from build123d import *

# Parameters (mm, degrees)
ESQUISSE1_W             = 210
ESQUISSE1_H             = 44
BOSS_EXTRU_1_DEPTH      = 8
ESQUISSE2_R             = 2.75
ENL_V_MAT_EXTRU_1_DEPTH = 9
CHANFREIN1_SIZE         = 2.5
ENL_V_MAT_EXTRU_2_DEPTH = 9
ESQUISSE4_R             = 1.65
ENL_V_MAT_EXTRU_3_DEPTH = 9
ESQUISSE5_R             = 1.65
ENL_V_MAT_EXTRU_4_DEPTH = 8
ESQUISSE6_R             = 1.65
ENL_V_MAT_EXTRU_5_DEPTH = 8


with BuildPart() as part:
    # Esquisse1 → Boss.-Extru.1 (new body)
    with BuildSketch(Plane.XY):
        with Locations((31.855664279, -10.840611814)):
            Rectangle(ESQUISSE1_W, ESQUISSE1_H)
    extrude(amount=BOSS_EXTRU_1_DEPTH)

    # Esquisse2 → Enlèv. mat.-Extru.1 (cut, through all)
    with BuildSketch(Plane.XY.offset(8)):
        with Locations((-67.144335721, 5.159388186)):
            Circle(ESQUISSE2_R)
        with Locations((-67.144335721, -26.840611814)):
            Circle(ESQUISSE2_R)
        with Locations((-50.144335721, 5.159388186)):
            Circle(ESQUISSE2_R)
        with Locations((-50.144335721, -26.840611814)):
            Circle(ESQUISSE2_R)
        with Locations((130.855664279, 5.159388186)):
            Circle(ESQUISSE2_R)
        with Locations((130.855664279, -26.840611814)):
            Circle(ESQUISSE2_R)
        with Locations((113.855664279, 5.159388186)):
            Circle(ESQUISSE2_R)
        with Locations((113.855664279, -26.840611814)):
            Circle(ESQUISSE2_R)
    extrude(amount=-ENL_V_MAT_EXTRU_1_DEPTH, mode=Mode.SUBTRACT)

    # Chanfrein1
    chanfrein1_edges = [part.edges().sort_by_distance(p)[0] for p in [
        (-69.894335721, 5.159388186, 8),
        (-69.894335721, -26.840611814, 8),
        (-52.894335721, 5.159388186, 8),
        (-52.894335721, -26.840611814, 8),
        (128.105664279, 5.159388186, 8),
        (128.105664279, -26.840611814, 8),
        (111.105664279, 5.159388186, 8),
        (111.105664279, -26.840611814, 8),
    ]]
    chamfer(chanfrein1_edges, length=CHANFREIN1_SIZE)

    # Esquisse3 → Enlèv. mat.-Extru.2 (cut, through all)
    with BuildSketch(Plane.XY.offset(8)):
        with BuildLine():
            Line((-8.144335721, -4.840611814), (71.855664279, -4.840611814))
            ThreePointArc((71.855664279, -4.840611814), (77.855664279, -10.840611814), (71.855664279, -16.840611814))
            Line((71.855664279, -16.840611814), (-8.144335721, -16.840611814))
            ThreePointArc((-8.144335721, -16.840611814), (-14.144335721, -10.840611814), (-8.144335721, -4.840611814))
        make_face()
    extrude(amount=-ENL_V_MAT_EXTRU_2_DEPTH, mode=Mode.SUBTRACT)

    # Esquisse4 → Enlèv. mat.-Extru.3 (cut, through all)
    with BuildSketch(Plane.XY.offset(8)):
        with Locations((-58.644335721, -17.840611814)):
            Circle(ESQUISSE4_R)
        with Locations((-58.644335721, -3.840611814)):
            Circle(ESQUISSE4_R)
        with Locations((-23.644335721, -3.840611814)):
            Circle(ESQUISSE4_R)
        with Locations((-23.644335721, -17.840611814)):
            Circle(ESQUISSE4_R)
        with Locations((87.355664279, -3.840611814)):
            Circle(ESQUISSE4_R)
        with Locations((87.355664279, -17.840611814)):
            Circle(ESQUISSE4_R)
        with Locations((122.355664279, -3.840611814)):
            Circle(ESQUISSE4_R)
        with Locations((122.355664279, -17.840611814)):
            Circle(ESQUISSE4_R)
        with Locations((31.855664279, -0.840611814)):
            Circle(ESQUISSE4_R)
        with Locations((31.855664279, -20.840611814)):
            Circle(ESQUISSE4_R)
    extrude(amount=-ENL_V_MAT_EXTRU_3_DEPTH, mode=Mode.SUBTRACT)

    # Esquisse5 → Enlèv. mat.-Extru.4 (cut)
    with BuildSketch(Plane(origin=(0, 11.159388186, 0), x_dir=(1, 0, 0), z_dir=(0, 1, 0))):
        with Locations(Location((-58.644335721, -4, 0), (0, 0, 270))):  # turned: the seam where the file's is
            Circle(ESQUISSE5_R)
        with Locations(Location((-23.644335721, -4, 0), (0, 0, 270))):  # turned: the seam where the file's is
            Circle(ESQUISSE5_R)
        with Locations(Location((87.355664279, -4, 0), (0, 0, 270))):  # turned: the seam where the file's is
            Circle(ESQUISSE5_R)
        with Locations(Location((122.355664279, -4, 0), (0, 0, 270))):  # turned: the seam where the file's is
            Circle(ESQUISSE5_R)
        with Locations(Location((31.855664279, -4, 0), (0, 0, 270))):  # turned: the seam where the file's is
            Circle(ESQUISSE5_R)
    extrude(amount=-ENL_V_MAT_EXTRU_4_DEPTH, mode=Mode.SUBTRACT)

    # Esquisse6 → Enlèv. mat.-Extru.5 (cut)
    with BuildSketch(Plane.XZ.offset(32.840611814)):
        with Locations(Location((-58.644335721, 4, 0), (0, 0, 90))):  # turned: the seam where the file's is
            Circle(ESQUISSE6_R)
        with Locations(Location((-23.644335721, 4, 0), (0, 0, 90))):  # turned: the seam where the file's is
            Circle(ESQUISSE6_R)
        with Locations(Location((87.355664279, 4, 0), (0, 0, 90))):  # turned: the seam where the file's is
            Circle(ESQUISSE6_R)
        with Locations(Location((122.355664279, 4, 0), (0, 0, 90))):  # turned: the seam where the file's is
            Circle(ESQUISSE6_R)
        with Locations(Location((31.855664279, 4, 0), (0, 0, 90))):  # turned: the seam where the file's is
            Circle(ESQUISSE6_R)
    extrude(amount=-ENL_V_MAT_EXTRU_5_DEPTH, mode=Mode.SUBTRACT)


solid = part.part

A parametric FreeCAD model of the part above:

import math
import FreeCAD as App
import Part
import Sketcher

V = App.Vector
Q = App.Units.Quantity


def edges_at(feature, points):
    """Names of the edges that pass closest to the given points."""
    edges = feature.Shape.Edges
    near = lambda p: min(range(len(edges)), key=lambda i: edges[i].distToShape(Part.Vertex(*p))[0])
    return sorted({f"Edge{near(p) + 1}" for p in points})


def add_polygon(sketch, points):
    """Adds a closed chain of lines whose ends are joined by coincident constraints."""
    first, n = sketch.GeometryCount, len(points)
    for a, b in zip(points, points[1:] + points[:1]):
        sketch.addGeometry(Part.LineSegment(App.Vector(*a, 0), App.Vector(*b, 0)), False)
    for i in range(n):
        sketch.addConstraint(Sketcher.Constraint("Coincident", first + i, 2, first + (i + 1) % n, 1))

doc = App.newDocument("Part")
params = doc.addObject("Spreadsheet::Sheet", "Params")
for row, (alias, value) in enumerate([
    ("sketch1_width", "210 mm"),
    ("sketch1_height", "44 mm"),
    ("pad1_length", "8 mm"),
    ("sketch2_diameter", "5.5 mm"),
    ("chamfer_size", "2.5 mm"),
    ("sketch3_radius", "6 mm"),
    ("sketch3_width", "80 mm"),
    ("sketch4_diameter", "3.3 mm"),
    ("sketch5_diameter", "3.3 mm"),
    ("pocket4_length", "8 mm"),
    ("sketch6_diameter", "3.3 mm"),
    ("pocket5_length", "8 mm"),
], start=1):
    params.set(f"A{row}", alias)
    params.set(f"B{row}", "=" + value)
    params.setAlias(f"B{row}", alias)

body = doc.addObject("PartDesign::Body", "Body")

# Sketch on XY plane
sketch1 = body.newObject("Sketcher::SketchObject", "Sketch")
sketch1.AttachmentSupport = (doc.getObject("XY_Plane"), [""])
sketch1.MapMode = "FlatFace"
add_polygon(sketch1, [(-73, 11), (-73, -33), (137, -33), (137, 11)])  # lines 0-3
sketch1.addConstraint([
    Sketcher.Constraint("Vertical", 0),
    Sketcher.Constraint("Horizontal", 1),
    Sketcher.Constraint("Vertical", 2),
    Sketcher.Constraint("Horizontal", 3),
    Sketcher.Constraint("DistanceX", 1, 1, 1, 2, Q("210 mm")),
    Sketcher.Constraint("DistanceY", 0, 2, 0, 1, Q("44 mm")),
    Sketcher.Constraint("DistanceY", 0, 2, -1, 1, Q("32.840612 mm")),
    Sketcher.Constraint("DistanceX", 0, 2, -1, 1, Q("73.144336 mm")),
])
sketch1.setExpression("Constraints[8]", "Params.sketch1_width")
sketch1.setExpression("Constraints[9]", "Params.sketch1_height")
pad1 = body.newObject("PartDesign::Pad", "Pad")
pad1.Profile = sketch1
pad1.setExpression("Length", "Params.pad1_length")

# Sketch on XY plane
sketch2 = body.newObject("Sketcher::SketchObject", "Sketch001")
sketch2.AttachmentSupport = (doc.getObject("XY_Plane"), [""])
sketch2.MapMode = "FlatFace"
sketch2.AttachmentOffset = App.Placement(V(0, 0, 8), App.Rotation())
sketch2.addGeometry([
    Part.Circle(V(-67.1, 5.2, 0), V(0, 0, 1), 2.8),  # 0
    Part.Circle(V(-67.1, -26.8, 0), V(0, 0, 1), 2.8),  # 1
    Part.Circle(V(-50.1, 5.2, 0), V(0, 0, 1), 2.8),  # 2
    Part.Circle(V(-50.1, -26.8, 0), V(0, 0, 1), 2.8),  # 3
    Part.Circle(V(130.9, 5.2, 0), V(0, 0, 1), 2.8),  # 4
    Part.Circle(V(130.9, -26.8, 0), V(0, 0, 1), 2.8),  # 5
    Part.Circle(V(113.9, 5.2, 0), V(0, 0, 1), 2.8),  # 6
    Part.Circle(V(113.9, -26.8, 0), V(0, 0, 1), 2.8),  # 7
], False)
sketch2.addConstraint([
    Sketcher.Constraint("Equal", 0, 1),
    Sketcher.Constraint("Equal", 1, 2),
    Sketcher.Constraint("Equal", 2, 3),
    Sketcher.Constraint("Equal", 3, 4),
    Sketcher.Constraint("Equal", 4, 5),
    Sketcher.Constraint("Equal", 5, 6),
    Sketcher.Constraint("Equal", 6, 7),
    Sketcher.Constraint("Horizontal", 0, 3, 2, 3),
    Sketcher.Constraint("Horizontal", 1, 3, 3, 3),
    Sketcher.Constraint("Horizontal", 2, 3, 4, 3),
    Sketcher.Constraint("Horizontal", 3, 3, 5, 3),
    Sketcher.Constraint("Horizontal", 4, 3, 6, 3),
    Sketcher.Constraint("Horizontal", 5, 3, 7, 3),
    Sketcher.Constraint("Vertical", 0, 3, 1, 3),
    Sketcher.Constraint("Vertical", 2, 3, 3, 3),
    Sketcher.Constraint("Vertical", 4, 3, 5, 3),
    Sketcher.Constraint("Vertical", 6, 3, 7, 3),
    Sketcher.Constraint("Diameter", 0, Q("5.5 mm")),
    Sketcher.Constraint("DistanceY", 1, 3, 0, 3, Q("32 mm")),
    Sketcher.Constraint("DistanceX", 0, 3, 2, 3, Q("17 mm")),
    Sketcher.Constraint("DistanceX", 2, 3, 4, 3, Q("181 mm")),
    Sketcher.Constraint("DistanceX", 6, 3, 4, 3, Q("17 mm")),
    Sketcher.Constraint("DistanceY", -1, 1, 0, 3, Q("5.159388 mm")),
    Sketcher.Constraint("DistanceX", 0, 3, -1, 1, Q("67.144336 mm")),
])
sketch2.setExpression("Constraints[17]", "Params.sketch2_diameter")
pocket1 = body.newObject("PartDesign::Pocket", "Pocket")
pocket1.Profile = sketch2
pocket1.Type = "ThroughAll"
doc.recompute()

chamfer = body.newObject("PartDesign::Chamfer", "Chamfer")
chamfer.Base = (pocket1, edges_at(pocket1, [
    (-69.894, 5.159, 8),
    (-69.894, -26.841, 8),
    (-52.894, 5.159, 8),
    (-52.894, -26.841, 8),
    (128.106, 5.159, 8),
    (128.106, -26.841, 8),
    (111.106, 5.159, 8),
    (111.106, -26.841, 8),
]))
chamfer.setExpression("Size", "Params.chamfer_size")

# Sketch on XY plane
sketch3 = body.newObject("Sketcher::SketchObject", "Sketch002")
sketch3.AttachmentSupport = (doc.getObject("XY_Plane"), [""])
sketch3.MapMode = "FlatFace"
sketch3.AttachmentOffset = App.Placement(V(0, 0, 8), App.Rotation())
sketch3.addGeometry([
    Part.LineSegment(V(72, -5, 0), V(-8, -5, 0)),
    Part.ArcOfCircle(Part.Circle(V(-8, -11, 0), V(0, 0, 1), 6), math.radians(90), math.radians(270)),
    Part.LineSegment(V(-8, -17, 0), V(72, -17, 0)),
    Part.ArcOfCircle(Part.Circle(V(72, -11, 0), V(0, 0, 1), 6), math.radians(-90), math.radians(90)),
], False)
sketch3.addConstraint([
    Sketcher.Constraint("Tangent", 0, 2, 1, 1),
    Sketcher.Constraint("Tangent", 1, 2, 2, 1),
    Sketcher.Constraint("Tangent", 2, 2, 3, 1),
    Sketcher.Constraint("Tangent", 3, 2, 0, 1),
    Sketcher.Constraint("Horizontal", 0),
    Sketcher.Constraint("Horizontal", 2),
    Sketcher.Constraint("Radius", 1, Q("6 mm")),
    Sketcher.Constraint("DistanceX", 0, 2, 0, 1, Q("80 mm")),
    Sketcher.Constraint("DistanceY", 1, 3, -1, 1, Q("10.840612 mm")),
    Sketcher.Constraint("DistanceX", 1, 3, -1, 1, Q("8.144336 mm")),
])
sketch3.setExpression("Constraints[6]", "Params.sketch3_radius")
sketch3.setExpression("Constraints[7]", "Params.sketch3_width")
pocket2 = body.newObject("PartDesign::Pocket", "Pocket001")
pocket2.Profile = sketch3
pocket2.Type = "ThroughAll"

# Sketch on XY plane
sketch4 = body.newObject("Sketcher::SketchObject", "Sketch003")
sketch4.AttachmentSupport = (doc.getObject("XY_Plane"), [""])
sketch4.MapMode = "FlatFace"
sketch4.AttachmentOffset = App.Placement(V(0, 0, 8), App.Rotation())
sketch4.addGeometry([
    Part.Circle(V(-58.6, -17.8, 0), V(0, 0, 1), 1.6),  # 0
    Part.Circle(V(-58.6, -3.8, 0), V(0, 0, 1), 1.6),  # 1
    Part.Circle(V(-23.6, -3.8, 0), V(0, 0, 1), 1.6),  # 2
    Part.Circle(V(-23.6, -17.8, 0), V(0, 0, 1), 1.6),  # 3
    Part.Circle(V(87.4, -3.8, 0), V(0, 0, 1), 1.6),  # 4
    Part.Circle(V(87.4, -17.8, 0), V(0, 0, 1), 1.6),  # 5
    Part.Circle(V(122.4, -3.8, 0), V(0, 0, 1), 1.6),  # 6
    Part.Circle(V(122.4, -17.8, 0), V(0, 0, 1), 1.6),  # 7
    Part.Circle(V(31.9, -0.8, 0), V(0, 0, 1), 1.6),  # 8
    Part.Circle(V(31.9, -20.8, 0), V(0, 0, 1), 1.6),  # 9
], False)
sketch4.addConstraint([
    Sketcher.Constraint("Equal", 0, 1),
    Sketcher.Constraint("Equal", 1, 2),
    Sketcher.Constraint("Equal", 2, 3),
    Sketcher.Constraint("Equal", 3, 4),
    Sketcher.Constraint("Equal", 4, 5),
    Sketcher.Constraint("Equal", 5, 6),
    Sketcher.Constraint("Equal", 6, 7),
    Sketcher.Constraint("Equal", 7, 8),
    Sketcher.Constraint("Equal", 8, 9),
    Sketcher.Constraint("Horizontal", 1, 3, 2, 3),
    Sketcher.Constraint("Horizontal", 0, 3, 3, 3),
    Sketcher.Constraint("Horizontal", 2, 3, 4, 3),
    Sketcher.Constraint("Horizontal", 3, 3, 5, 3),
    Sketcher.Constraint("Horizontal", 4, 3, 6, 3),
    Sketcher.Constraint("Horizontal", 5, 3, 7, 3),
    Sketcher.Constraint("Vertical", 0, 3, 1, 3),
    Sketcher.Constraint("Vertical", 2, 3, 3, 3),
    Sketcher.Constraint("Vertical", 4, 3, 5, 3),
    Sketcher.Constraint("Vertical", 6, 3, 7, 3),
    Sketcher.Constraint("Vertical", 8, 3, 9, 3),
    Sketcher.Constraint("Diameter", 0, Q("3.3 mm")),
    Sketcher.Constraint("DistanceY", 0, 3, 1, 3, Q("14 mm")),
    Sketcher.Constraint("DistanceX", 1, 3, 2, 3, Q("35 mm")),
    Sketcher.Constraint("DistanceX", 2, 3, 4, 3, Q("111 mm")),
    Sketcher.Constraint("DistanceX", 4, 3, 6, 3, Q("35 mm")),
    Sketcher.Constraint("DistanceY", 2, 3, 8, 3, Q("3 mm")),
    Sketcher.Constraint("DistanceY", 9, 3, 8, 3, Q("20 mm")),
    Sketcher.Constraint("DistanceX", 2, 3, 8, 3, Q("55.5 mm")),
    Sketcher.Constraint("DistanceY", 0, 3, -1, 1, Q("17.840612 mm")),
    Sketcher.Constraint("DistanceX", 0, 3, -1, 1, Q("58.644336 mm")),
])
sketch4.setExpression("Constraints[20]", "Params.sketch4_diameter")
pocket3 = body.newObject("PartDesign::Pocket", "Pocket002")
pocket3.Profile = sketch4
pocket3.Type = "ThroughAll"

# Sketch on XZ plane
sketch5 = body.newObject("Sketcher::SketchObject", "Sketch004")
sketch5.AttachmentSupport = (doc.getObject("XZ_Plane"), [""])
sketch5.MapMode = "FlatFace"
sketch5.AttachmentOffset = App.Placement(V(0, 0, -11.159388), App.Rotation())
sketch5.addGeometry([
    Part.Circle(V(-58.6, 4, 0), V(0, 0, 1), 1.6),  # 0
    Part.Circle(V(-23.6, 4, 0), V(0, 0, 1), 1.6),  # 1
    Part.Circle(V(87.4, 4, 0), V(0, 0, 1), 1.6),  # 2
    Part.Circle(V(122.4, 4, 0), V(0, 0, 1), 1.6),  # 3
    Part.Circle(V(31.9, 4, 0), V(0, 0, 1), 1.6),  # 4
], False)
sketch5.addConstraint([
    Sketcher.Constraint("Equal", 0, 1),
    Sketcher.Constraint("Equal", 1, 2),
    Sketcher.Constraint("Equal", 2, 3),
    Sketcher.Constraint("Equal", 3, 4),
    Sketcher.Constraint("Horizontal", 0, 3, 1, 3),
    Sketcher.Constraint("Horizontal", 1, 3, 2, 3),
    Sketcher.Constraint("Horizontal", 2, 3, 3, 3),
    Sketcher.Constraint("Horizontal", 3, 3, 4, 3),
    Sketcher.Constraint("Diameter", 0, Q("3.3 mm")),
    Sketcher.Constraint("DistanceY", -1, 1, 0, 3, Q("4 mm")),
    Sketcher.Constraint("DistanceX", 0, 3, 1, 3, Q("35 mm")),
    Sketcher.Constraint("DistanceX", 1, 3, 2, 3, Q("111 mm")),
    Sketcher.Constraint("DistanceX", 2, 3, 3, 3, Q("35 mm")),
    Sketcher.Constraint("DistanceX", 1, 3, 4, 3, Q("55.5 mm")),
    Sketcher.Constraint("DistanceX", 0, 3, -1, 1, Q("58.644336 mm")),
])
sketch5.setExpression("Constraints[8]", "Params.sketch5_diameter")
pocket4 = body.newObject("PartDesign::Pocket", "Pocket003")
pocket4.Profile = sketch5
pocket4.setExpression("Length", "Params.pocket4_length")
pocket4.Reversed = True

# Sketch on XZ plane
sketch6 = body.newObject("Sketcher::SketchObject", "Sketch005")
sketch6.AttachmentSupport = (doc.getObject("XZ_Plane"), [""])
sketch6.MapMode = "FlatFace"
sketch6.AttachmentOffset = App.Placement(V(0, 0, 32.840612), App.Rotation())
sketch6.addGeometry([
    Part.Circle(V(-58.6, 4, 0), V(0, 0, 1), 1.6),  # 0
    Part.Circle(V(-23.6, 4, 0), V(0, 0, 1), 1.6),  # 1
    Part.Circle(V(87.4, 4, 0), V(0, 0, 1), 1.6),  # 2
    Part.Circle(V(122.4, 4, 0), V(0, 0, 1), 1.6),  # 3
    Part.Circle(V(31.9, 4, 0), V(0, 0, 1), 1.6),  # 4
], False)
sketch6.addConstraint([
    Sketcher.Constraint("Equal", 0, 1),
    Sketcher.Constraint("Equal", 1, 2),
    Sketcher.Constraint("Equal", 2, 3),
    Sketcher.Constraint("Equal", 3, 4),
    Sketcher.Constraint("Horizontal", 0, 3, 1, 3),
    Sketcher.Constraint("Horizontal", 1, 3, 2, 3),
    Sketcher.Constraint("Horizontal", 2, 3, 3, 3),
    Sketcher.Constraint("Horizontal", 3, 3, 4, 3),
    Sketcher.Constraint("Diameter", 0, Q("3.3 mm")),
    Sketcher.Constraint("DistanceY", -1, 1, 0, 3, Q("4 mm")),
    Sketcher.Constraint("DistanceX", 0, 3, 1, 3, Q("35 mm")),
    Sketcher.Constraint("DistanceX", 1, 3, 2, 3, Q("111 mm")),
    Sketcher.Constraint("DistanceX", 2, 3, 3, 3, Q("35 mm")),
    Sketcher.Constraint("DistanceX", 1, 3, 4, 3, Q("55.5 mm")),
    Sketcher.Constraint("DistanceX", 0, 3, -1, 1, Q("58.644336 mm")),
])
sketch6.setExpression("Constraints[8]", "Params.sketch6_diameter")
pocket5 = body.newObject("PartDesign::Pocket", "Pocket004")
pocket5.Profile = sketch6
pocket5.setExpression("Length", "Params.pocket5_length")

doc.recompute()
